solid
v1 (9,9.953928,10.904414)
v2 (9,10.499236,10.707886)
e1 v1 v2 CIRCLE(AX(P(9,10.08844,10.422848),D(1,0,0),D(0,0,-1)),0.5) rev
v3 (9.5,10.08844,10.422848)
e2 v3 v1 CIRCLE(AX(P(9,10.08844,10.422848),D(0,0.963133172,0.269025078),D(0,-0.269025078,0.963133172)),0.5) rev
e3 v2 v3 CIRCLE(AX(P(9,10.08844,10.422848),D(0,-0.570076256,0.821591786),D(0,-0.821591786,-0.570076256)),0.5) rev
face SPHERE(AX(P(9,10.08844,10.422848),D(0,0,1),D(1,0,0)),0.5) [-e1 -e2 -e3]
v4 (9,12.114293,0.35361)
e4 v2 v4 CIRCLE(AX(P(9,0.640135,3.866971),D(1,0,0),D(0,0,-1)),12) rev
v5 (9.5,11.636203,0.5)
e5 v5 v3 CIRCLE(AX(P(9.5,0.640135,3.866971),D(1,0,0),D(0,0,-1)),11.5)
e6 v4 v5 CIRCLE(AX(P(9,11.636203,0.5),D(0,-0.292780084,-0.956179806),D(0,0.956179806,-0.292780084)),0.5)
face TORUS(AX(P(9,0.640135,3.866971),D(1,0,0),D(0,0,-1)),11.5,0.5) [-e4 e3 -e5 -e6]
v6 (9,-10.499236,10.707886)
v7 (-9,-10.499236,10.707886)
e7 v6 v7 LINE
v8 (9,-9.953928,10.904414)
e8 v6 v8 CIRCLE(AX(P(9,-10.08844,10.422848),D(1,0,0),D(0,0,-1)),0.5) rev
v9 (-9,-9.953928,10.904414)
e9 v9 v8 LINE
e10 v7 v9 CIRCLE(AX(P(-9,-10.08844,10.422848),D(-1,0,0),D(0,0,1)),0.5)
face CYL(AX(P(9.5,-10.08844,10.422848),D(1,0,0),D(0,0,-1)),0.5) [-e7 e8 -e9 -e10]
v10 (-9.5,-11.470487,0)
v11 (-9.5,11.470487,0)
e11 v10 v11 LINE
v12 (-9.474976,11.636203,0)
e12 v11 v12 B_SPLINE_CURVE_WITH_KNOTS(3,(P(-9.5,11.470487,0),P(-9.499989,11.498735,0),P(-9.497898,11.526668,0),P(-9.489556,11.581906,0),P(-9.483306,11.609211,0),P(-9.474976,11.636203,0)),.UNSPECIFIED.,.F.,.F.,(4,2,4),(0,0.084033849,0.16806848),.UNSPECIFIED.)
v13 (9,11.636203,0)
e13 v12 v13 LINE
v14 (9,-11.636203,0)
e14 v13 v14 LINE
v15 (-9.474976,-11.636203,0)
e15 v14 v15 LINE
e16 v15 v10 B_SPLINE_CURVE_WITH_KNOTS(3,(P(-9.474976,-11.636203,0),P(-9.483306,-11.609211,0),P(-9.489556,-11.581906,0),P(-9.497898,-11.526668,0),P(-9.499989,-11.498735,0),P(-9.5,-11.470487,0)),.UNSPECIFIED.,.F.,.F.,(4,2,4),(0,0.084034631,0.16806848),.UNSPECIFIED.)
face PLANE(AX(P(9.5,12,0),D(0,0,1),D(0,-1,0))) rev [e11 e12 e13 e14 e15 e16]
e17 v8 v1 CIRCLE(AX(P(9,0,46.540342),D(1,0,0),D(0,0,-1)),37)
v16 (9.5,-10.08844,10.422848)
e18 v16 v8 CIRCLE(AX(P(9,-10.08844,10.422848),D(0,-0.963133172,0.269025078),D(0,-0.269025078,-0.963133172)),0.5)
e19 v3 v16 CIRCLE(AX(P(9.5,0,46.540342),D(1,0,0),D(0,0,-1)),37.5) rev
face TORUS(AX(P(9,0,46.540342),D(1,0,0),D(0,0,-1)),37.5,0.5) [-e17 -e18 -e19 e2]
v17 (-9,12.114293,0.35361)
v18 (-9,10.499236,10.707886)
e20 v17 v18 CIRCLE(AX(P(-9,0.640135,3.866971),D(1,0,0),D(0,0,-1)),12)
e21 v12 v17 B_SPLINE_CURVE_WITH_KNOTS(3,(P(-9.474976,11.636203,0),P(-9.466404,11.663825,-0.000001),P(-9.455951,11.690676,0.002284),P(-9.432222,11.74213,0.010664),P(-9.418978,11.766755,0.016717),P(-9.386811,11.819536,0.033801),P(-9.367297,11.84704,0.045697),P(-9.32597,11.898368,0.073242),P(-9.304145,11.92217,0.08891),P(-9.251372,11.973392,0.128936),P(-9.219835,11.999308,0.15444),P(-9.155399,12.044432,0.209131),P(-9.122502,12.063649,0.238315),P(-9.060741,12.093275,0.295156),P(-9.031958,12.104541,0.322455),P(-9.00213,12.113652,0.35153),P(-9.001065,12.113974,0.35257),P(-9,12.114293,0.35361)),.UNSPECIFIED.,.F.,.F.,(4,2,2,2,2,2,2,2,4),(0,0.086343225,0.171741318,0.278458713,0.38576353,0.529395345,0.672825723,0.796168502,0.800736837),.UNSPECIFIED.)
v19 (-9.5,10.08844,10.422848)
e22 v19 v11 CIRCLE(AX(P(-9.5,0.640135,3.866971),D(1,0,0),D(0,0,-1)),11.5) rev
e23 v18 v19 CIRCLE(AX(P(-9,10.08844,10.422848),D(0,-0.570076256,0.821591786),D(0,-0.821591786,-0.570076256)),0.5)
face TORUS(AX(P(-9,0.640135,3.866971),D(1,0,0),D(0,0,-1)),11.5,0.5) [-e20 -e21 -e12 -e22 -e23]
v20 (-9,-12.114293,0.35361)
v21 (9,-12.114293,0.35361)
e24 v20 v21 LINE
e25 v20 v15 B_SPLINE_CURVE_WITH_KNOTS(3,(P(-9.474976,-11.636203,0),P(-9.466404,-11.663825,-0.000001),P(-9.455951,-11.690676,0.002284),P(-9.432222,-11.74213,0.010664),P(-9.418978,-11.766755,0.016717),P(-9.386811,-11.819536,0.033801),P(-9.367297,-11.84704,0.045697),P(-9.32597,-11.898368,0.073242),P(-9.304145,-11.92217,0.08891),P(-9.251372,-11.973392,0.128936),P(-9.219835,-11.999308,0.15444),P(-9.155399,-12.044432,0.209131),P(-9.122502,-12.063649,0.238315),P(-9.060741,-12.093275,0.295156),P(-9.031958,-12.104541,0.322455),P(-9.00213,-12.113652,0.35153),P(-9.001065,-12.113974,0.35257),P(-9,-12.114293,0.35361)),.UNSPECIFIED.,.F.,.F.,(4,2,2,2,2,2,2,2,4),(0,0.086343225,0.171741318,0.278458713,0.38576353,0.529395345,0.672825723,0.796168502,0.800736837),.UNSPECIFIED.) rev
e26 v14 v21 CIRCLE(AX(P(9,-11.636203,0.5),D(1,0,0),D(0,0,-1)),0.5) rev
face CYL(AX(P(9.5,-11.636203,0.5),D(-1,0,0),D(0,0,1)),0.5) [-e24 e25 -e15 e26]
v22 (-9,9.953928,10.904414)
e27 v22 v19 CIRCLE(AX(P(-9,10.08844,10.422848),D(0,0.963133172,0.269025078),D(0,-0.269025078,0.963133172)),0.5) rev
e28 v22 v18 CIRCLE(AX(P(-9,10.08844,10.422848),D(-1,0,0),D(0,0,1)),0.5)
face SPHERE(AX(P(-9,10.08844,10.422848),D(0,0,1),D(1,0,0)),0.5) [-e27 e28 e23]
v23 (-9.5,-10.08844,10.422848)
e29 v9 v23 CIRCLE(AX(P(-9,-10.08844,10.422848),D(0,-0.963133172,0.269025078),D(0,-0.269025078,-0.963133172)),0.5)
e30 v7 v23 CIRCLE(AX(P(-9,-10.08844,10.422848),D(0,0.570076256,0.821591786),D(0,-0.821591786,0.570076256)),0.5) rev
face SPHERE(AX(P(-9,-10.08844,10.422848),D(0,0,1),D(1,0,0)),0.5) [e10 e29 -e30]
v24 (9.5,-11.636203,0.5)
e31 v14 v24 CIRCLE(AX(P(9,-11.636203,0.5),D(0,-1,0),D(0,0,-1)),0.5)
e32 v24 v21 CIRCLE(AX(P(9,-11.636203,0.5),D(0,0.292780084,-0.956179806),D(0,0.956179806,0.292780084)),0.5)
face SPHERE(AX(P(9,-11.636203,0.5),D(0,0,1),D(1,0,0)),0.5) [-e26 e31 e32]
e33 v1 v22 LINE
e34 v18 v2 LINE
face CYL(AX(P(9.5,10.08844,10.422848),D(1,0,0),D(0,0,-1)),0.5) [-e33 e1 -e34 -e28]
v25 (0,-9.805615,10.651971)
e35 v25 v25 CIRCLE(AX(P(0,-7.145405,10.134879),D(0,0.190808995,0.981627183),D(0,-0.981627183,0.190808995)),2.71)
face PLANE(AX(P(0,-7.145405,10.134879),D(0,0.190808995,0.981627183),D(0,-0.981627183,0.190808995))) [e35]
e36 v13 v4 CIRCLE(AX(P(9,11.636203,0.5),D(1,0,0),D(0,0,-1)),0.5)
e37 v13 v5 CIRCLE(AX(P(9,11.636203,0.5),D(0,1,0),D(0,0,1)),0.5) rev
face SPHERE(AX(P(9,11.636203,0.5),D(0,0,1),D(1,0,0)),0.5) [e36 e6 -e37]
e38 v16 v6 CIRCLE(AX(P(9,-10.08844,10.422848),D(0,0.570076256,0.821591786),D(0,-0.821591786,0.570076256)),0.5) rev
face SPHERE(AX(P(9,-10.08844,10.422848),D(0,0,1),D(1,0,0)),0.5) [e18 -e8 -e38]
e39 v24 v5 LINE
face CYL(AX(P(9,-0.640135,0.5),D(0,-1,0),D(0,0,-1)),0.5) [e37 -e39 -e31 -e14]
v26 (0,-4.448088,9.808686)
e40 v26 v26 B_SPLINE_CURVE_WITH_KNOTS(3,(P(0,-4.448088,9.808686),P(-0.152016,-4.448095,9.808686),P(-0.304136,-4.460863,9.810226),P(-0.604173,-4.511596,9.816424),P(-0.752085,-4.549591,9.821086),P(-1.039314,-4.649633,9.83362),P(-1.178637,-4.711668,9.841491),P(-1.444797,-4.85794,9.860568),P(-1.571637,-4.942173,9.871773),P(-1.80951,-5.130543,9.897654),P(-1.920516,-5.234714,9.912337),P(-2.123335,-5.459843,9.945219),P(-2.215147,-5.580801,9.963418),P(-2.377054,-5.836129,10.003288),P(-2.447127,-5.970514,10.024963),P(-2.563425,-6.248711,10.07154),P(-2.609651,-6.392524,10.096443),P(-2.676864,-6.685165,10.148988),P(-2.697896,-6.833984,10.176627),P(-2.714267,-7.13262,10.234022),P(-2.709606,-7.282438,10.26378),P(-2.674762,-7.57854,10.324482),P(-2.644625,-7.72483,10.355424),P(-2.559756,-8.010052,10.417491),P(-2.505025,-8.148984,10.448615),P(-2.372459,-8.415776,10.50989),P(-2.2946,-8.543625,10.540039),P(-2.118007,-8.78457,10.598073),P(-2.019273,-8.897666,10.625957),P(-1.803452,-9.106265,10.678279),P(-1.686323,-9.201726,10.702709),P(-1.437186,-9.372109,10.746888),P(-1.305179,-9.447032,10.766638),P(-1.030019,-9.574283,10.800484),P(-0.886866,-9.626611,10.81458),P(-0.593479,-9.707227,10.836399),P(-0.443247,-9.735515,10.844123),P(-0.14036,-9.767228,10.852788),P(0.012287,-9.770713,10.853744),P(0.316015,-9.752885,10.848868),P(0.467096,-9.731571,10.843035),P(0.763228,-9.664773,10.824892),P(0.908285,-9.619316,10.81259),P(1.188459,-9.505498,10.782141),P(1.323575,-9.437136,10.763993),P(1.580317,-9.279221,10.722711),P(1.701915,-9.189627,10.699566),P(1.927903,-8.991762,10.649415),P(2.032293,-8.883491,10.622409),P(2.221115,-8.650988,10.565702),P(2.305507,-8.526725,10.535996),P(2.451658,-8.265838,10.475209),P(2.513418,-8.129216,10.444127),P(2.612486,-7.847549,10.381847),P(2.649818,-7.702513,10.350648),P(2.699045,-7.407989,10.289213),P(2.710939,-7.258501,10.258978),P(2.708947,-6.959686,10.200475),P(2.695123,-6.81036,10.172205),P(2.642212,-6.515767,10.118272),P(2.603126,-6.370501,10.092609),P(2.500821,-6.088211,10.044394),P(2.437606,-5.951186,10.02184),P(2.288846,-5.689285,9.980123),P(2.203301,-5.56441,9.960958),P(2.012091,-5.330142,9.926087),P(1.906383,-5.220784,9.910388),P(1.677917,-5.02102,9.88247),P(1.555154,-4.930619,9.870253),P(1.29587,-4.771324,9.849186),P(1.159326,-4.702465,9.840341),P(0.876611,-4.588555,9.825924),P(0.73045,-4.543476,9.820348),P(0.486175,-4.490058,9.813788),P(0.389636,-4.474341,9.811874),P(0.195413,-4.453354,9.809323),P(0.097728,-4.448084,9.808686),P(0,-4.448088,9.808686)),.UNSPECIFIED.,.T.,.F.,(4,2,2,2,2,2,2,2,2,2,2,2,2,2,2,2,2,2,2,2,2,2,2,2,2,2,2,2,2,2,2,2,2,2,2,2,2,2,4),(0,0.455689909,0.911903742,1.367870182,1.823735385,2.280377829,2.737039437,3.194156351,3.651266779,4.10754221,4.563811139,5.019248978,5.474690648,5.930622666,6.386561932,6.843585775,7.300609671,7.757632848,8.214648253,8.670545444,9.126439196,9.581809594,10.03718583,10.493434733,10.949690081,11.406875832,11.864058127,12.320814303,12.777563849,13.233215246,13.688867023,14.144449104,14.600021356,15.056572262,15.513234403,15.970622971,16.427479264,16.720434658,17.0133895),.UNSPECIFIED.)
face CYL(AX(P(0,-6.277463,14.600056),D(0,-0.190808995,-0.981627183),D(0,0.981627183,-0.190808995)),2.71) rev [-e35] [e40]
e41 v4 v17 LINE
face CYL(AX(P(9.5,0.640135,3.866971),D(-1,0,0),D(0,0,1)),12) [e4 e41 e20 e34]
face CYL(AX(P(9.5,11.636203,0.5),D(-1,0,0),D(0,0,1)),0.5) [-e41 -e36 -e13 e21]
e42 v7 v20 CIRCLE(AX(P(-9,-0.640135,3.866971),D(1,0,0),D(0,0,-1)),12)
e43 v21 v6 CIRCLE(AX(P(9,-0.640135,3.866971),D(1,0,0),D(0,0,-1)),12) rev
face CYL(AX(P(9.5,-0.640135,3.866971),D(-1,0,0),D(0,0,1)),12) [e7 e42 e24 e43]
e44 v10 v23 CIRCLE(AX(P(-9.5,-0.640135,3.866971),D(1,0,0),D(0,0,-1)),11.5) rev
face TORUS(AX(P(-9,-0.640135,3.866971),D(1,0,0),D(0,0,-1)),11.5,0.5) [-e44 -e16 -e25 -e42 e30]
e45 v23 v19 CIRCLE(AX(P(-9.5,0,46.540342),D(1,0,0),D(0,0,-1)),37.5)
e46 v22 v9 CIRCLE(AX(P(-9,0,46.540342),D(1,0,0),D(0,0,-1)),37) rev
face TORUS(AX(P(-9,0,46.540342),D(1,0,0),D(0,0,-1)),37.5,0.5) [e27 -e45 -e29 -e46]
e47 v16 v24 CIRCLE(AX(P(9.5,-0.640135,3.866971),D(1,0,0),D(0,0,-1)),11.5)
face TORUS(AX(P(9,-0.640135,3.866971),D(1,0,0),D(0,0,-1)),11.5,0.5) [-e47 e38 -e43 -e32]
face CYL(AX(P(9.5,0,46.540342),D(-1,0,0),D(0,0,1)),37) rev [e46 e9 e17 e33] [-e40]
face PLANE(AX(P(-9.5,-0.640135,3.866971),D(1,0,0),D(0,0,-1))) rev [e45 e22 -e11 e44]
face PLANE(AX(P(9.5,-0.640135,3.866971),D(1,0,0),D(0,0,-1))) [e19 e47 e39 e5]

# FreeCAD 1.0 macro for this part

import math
import FreeCAD as App
import Part
import Sketcher


def edges_at(feature, points):
    """Names of the edges that pass closest to the given points."""
    edges = feature.Shape.Edges
    near = lambda p: min(range(len(edges)), key=lambda i: edges[i].distToShape(Part.Vertex(*p))[0])
    return sorted({f"Edge{near(p) + 1}" for p in points})

doc = App.newDocument("Part")
params = doc.addObject("Spreadsheet::Sheet", "Params")
for row, (alias, value) in enumerate([
    ("sketch1_radius", "12 mm"),
    ("sketch1_radius2", "37 mm"),
    ("sketch1_width", "24 mm"),
    ("pad1_length", "19 mm"),
    ("fillet_radius", "0.5 mm"),
    ("sketch2_diameter", "5.42 mm"),
    ("pocket1_length", "5.448751 mm"),
    ("pocket1_length2", "0.1 mm"),
], start=1):
    params.set(f"A{row}", alias)
    params.set(f"B{row}", "=" + value)
    params.setAlias(f"B{row}", alias)

body = doc.addObject("PartDesign::Body", "Body")

sketch1 = doc.addObject("Sketcher::SketchObject", "Sketch")
body.addObject(sketch1)
sketch1.AttachmentSupport = (doc.YZ_Plane, [""])
sketch1.MapMode = "FlatFace"
sketch1.addGeometry([
    Part.LineSegment(App.Vector(-12, 0, 0), App.Vector(12, 0, 0)),
    Part.ArcOfCircle(Part.Circle(App.Vector(1, 4, 0), App.Vector(0, 0, 1), 12), math.radians(-19), math.radians(36)),
    Part.ArcOfCircle(Part.Circle(App.Vector(0, 47, 0), App.Vector(0, 0, 1), 37), math.radians(-106), math.radians(-74)),
    Part.ArcOfCircle(Part.Circle(App.Vector(-1, 4, 0), App.Vector(0, 0, 1), 12), math.radians(144), math.radians(199)),
], False)
sketch1.addConstraint([
    Sketcher.Constraint("Coincident", 0, 2, 1, 1),
    Sketcher.Constraint("Coincident", 1, 2, 2, 2),
    Sketcher.Constraint("Coincident", 2, 1, 3, 1),
    Sketcher.Constraint("Coincident", 3, 2, 0, 1),
    Sketcher.Constraint("Horizontal", 0),
    Sketcher.Constraint("Equal", 1, 3),
    Sketcher.Constraint("Symmetric", 0, 2, 3, 2, -1, 1),
    Sketcher.Constraint("Symmetric", 1, 2, 2, 1, -2),
    Sketcher.Constraint("Radius", 1, 12.0),
    Sketcher.Constraint("Radius", 2, 37.0),
    Sketcher.Constraint("DistanceX", 0, 1, 0, 2, 24.0),
    Sketcher.Constraint("DistanceY", -1, 1, 1, 2, 11.0),
    Sketcher.Constraint("DistanceX", -1, 1, 1, 2, 10.29),
])
sketch1.setExpression("Constraints[8]", "Params.sketch1_radius")
sketch1.setExpression("Constraints[9]", "Params.sketch1_radius2")
sketch1.setExpression("Constraints[10]", "Params.sketch1_width")
pad1 = doc.addObject("PartDesign::Pad", "Pad")
body.addObject(pad1)
pad1.Profile = sketch1
pad1.setExpression("Length", "Params.pad1_length")
pad1.Midplane = True
doc.recompute()

fillet = doc.addObject("PartDesign::Fillet", "Fillet")
body.addObject(fillet)
fillet.Base = (pad1, edges_at(pad1, [
    (9.5, 12.498, 5.71),
    (9.5, 0, 9.54),
    (9.5, -12.498, 5.71),
    (-9.5, 0, 9.54),
    (-9.5, 12.498, 5.71),
    (-9.5, -12.498, 5.71),
    (0, -10.29, 11),
    (0, 10.29, 11),
    (0, 12, 0),
    (0, -12, 0),
    (9.5, 0, 0),
]))
fillet.setExpression("Radius", "Params.fillet_radius")

sketch2 = doc.addObject("Sketcher::SketchObject", "Sketch001")
body.addObject(sketch2)
sketch2.Placement = App.Placement(App.Vector(0, 1.657227, 8.525692), App.Rotation(App.Vector(-1, 0, 0), App.Vector(0, -0.981627184, 0.190808995), App.Vector(0, 0.190808995, 0.981627184), "ZXY"))
sketch2.addGeometry(Part.Circle(App.Vector(0, 8.9, 0), App.Vector(0, 0, 1), 2.7), False)
sketch2.addConstraint([
    Sketcher.Constraint("PointOnObject", 0, 3, -2),
    Sketcher.Constraint("Diameter", 0, 5.42),
    Sketcher.Constraint("DistanceY", -1, 1, 0, 3, 8.94795),
])
sketch2.setExpression("Constraints[1]", "Params.sketch2_diameter")
pocket1 = doc.addObject("PartDesign::Pocket", "Pocket")
body.addObject(pocket1)
pocket1.Profile = sketch2
pocket1.Type = "TwoLengths"
pocket1.setExpression("Length", "Params.pocket1_length")
pocket1.setExpression("Length2", "Params.pocket1_length2")
pocket1.Reversed = True

doc.recompute()
